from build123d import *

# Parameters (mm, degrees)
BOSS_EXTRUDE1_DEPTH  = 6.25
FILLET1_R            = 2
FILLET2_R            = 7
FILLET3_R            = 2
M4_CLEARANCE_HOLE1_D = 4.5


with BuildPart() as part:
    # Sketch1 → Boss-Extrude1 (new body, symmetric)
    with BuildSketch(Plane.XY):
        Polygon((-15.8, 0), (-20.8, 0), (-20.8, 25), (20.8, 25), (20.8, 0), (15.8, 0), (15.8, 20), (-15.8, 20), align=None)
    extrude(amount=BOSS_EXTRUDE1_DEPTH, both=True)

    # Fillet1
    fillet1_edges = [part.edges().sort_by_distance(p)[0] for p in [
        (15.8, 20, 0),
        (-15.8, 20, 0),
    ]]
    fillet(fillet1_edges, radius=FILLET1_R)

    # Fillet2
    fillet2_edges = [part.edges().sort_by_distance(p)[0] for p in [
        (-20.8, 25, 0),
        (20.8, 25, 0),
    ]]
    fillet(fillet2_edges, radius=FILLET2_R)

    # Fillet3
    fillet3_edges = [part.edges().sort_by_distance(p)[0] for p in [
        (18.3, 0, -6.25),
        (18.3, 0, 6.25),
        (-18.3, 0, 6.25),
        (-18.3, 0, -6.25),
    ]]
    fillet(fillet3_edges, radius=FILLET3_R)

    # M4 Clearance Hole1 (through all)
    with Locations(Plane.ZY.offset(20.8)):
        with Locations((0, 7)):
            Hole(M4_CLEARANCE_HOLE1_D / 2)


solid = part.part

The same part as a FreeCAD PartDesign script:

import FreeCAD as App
import Part
import Sketcher
Q = App.Units.Quantity


def edges_at(feature, points):
    """Names of the edges that pass closest to the given points."""
    edges = feature.Shape.Edges
    near = lambda p: min(range(len(edges)), key=lambda i: edges[i].distToShape(Part.Vertex(*p))[0])
    return sorted({f"Edge{near(p) + 1}" for p in points})

doc = App.newDocument("Part")
body = doc.addObject("PartDesign::Body", "Body")

# Sketch on XY plane
sketch1 = body.newObject("Sketcher::SketchObject", "Sketch")
sketch1.AttachmentSupport = (doc.getObject("XY_Plane"), [""])
sketch1.MapMode = "FlatFace"
sketch1.addGeometry(Part.LineSegment(App.Vector(-21, 0, 0), App.Vector(-16, 0, 0)), False)
sketch1.addGeometry(Part.LineSegment(App.Vector(-16, 0, 0), App.Vector(-16, 20, 0)), False)
sketch1.addGeometry(Part.LineSegment(App.Vector(-16, 20, 0), App.Vector(16, 20, 0)), False)
sketch1.addGeometry(Part.LineSegment(App.Vector(16, 20, 0), App.Vector(16, 0, 0)), False)
sketch1.addGeometry(Part.LineSegment(App.Vector(16, 0, 0), App.Vector(21, 0, 0)), False)
sketch1.addGeometry(Part.LineSegment(App.Vector(21, 0, 0), App.Vector(21, 25, 0)), False)
sketch1.addGeometry(Part.LineSegment(App.Vector(21, 25, 0), App.Vector(-21, 25, 0)), False)
sketch1.addGeometry(Part.LineSegment(App.Vector(-21, 25, 0), App.Vector(-21, 0, 0)), False)
sketch1.addConstraint(Sketcher.Constraint("Coincident", 0, 2, 1, 1))
sketch1.addConstraint(Sketcher.Constraint("Coincident", 1, 2, 2, 1))
sketch1.addConstraint(Sketcher.Constraint("Coincident", 2, 2, 3, 1))
sketch1.addConstraint(Sketcher.Constraint("Coincident", 3, 2, 4, 1))
sketch1.addConstraint(Sketcher.Constraint("Coincident", 4, 2, 5, 1))
sketch1.addConstraint(Sketcher.Constraint("Coincident", 5, 2, 6, 1))
sketch1.addConstraint(Sketcher.Constraint("Coincident", 6, 2, 7, 1))
sketch1.addConstraint(Sketcher.Constraint("Coincident", 7, 2, 0, 1))
sketch1.addConstraint(Sketcher.Constraint("Horizontal", 0))
sketch1.addConstraint(Sketcher.Constraint("Vertical", 1))
sketch1.addConstraint(Sketcher.Constraint("Horizontal", 2))
sketch1.addConstraint(Sketcher.Constraint("Vertical", 3))
sketch1.addConstraint(Sketcher.Constraint("Horizontal", 4))
sketch1.addConstraint(Sketcher.Constraint("Vertical", 5))
sketch1.addConstraint(Sketcher.Constraint("Horizontal", 6))
sketch1.addConstraint(Sketcher.Constraint("Vertical", 7))
sketch1.addConstraint(Sketcher.Constraint("Symmetric", 0, 2, 3, 2, -1, 1))
sketch1.addConstraint(Sketcher.Constraint("Symmetric", 4, 2, 7, 2, -2))
sketch1.addConstraint(Sketcher.Constraint("DistanceX", 0, 1, 0, 2, Q("5 mm")))
sketch1.addConstraint(Sketcher.Constraint("DistanceY", 1, 1, 1, 2, Q("20 mm")))
sketch1.addConstraint(Sketcher.Constraint("DistanceY", 5, 1, 5, 2, Q("25 mm")))
sketch1.addConstraint(Sketcher.Constraint("DistanceX", 2, 1, 2, 2, Q("31.6 mm")))
pad1 = body.newObject("PartDesign::Pad", "Pad")
pad1.Profile = sketch1
pad1.Length = 12.5
pad1.Midplane = True
doc.recompute()

fillet = body.newObject("PartDesign::Fillet", "Fillet")
fillet.Base = (pad1, edges_at(pad1, [(15.8, 20, 0), (-15.8, 20, 0)]))
fillet.Radius = 2
doc.recompute()

fillet2 = body.newObject("PartDesign::Fillet", "Fillet001")
fillet2.Base = (fillet, edges_at(fillet, [(-20.8, 25, 0), (20.8, 25, 0)]))
fillet2.Radius = 7
doc.recompute()

fillet3 = body.newObject("PartDesign::Fillet", "Fillet002")
fillet3.Base = (fillet2, edges_at(fillet2, [
    (18.3, 0, -6.25),
    (18.3, 0, 6.25),
    (-18.3, 0, 6.25),
    (-18.3, 0, -6.25),
]))
fillet3.Radius = 2

# Sketch on YZ plane
sketch2 = body.newObject("Sketcher::SketchObject", "Sketch001")
sketch2.AttachmentSupport = (doc.getObject("YZ_Plane"), [""])
sketch2.MapMode = "FlatFace"
sketch2.AttachmentOffset = App.Placement(App.Vector(0, 0, -20.8), App.Rotation())
sketch2.addGeometry(Part.Circle(App.Vector(7, 0, 0), App.Vector(0, 0, 1), 2.2), False)
sketch2.addConstraint(Sketcher.Constraint("PointOnObject", 0, 3, -1))
sketch2.addConstraint(Sketcher.Constraint("Diameter", 0, Q("4.5 mm")))
sketch2.addConstraint(Sketcher.Constraint("DistanceX", -1, 1, 0, 3, Q("7 mm")))
doc.recompute()
hole = body.newObject("PartDesign::Hole", "Hole")
hole.Profile = sketch2
hole.ThreadType = "None"
hole.Diameter = 4.5
hole.DepthType = "ThroughAll"
hole.Reversed = True

doc.recompute()
